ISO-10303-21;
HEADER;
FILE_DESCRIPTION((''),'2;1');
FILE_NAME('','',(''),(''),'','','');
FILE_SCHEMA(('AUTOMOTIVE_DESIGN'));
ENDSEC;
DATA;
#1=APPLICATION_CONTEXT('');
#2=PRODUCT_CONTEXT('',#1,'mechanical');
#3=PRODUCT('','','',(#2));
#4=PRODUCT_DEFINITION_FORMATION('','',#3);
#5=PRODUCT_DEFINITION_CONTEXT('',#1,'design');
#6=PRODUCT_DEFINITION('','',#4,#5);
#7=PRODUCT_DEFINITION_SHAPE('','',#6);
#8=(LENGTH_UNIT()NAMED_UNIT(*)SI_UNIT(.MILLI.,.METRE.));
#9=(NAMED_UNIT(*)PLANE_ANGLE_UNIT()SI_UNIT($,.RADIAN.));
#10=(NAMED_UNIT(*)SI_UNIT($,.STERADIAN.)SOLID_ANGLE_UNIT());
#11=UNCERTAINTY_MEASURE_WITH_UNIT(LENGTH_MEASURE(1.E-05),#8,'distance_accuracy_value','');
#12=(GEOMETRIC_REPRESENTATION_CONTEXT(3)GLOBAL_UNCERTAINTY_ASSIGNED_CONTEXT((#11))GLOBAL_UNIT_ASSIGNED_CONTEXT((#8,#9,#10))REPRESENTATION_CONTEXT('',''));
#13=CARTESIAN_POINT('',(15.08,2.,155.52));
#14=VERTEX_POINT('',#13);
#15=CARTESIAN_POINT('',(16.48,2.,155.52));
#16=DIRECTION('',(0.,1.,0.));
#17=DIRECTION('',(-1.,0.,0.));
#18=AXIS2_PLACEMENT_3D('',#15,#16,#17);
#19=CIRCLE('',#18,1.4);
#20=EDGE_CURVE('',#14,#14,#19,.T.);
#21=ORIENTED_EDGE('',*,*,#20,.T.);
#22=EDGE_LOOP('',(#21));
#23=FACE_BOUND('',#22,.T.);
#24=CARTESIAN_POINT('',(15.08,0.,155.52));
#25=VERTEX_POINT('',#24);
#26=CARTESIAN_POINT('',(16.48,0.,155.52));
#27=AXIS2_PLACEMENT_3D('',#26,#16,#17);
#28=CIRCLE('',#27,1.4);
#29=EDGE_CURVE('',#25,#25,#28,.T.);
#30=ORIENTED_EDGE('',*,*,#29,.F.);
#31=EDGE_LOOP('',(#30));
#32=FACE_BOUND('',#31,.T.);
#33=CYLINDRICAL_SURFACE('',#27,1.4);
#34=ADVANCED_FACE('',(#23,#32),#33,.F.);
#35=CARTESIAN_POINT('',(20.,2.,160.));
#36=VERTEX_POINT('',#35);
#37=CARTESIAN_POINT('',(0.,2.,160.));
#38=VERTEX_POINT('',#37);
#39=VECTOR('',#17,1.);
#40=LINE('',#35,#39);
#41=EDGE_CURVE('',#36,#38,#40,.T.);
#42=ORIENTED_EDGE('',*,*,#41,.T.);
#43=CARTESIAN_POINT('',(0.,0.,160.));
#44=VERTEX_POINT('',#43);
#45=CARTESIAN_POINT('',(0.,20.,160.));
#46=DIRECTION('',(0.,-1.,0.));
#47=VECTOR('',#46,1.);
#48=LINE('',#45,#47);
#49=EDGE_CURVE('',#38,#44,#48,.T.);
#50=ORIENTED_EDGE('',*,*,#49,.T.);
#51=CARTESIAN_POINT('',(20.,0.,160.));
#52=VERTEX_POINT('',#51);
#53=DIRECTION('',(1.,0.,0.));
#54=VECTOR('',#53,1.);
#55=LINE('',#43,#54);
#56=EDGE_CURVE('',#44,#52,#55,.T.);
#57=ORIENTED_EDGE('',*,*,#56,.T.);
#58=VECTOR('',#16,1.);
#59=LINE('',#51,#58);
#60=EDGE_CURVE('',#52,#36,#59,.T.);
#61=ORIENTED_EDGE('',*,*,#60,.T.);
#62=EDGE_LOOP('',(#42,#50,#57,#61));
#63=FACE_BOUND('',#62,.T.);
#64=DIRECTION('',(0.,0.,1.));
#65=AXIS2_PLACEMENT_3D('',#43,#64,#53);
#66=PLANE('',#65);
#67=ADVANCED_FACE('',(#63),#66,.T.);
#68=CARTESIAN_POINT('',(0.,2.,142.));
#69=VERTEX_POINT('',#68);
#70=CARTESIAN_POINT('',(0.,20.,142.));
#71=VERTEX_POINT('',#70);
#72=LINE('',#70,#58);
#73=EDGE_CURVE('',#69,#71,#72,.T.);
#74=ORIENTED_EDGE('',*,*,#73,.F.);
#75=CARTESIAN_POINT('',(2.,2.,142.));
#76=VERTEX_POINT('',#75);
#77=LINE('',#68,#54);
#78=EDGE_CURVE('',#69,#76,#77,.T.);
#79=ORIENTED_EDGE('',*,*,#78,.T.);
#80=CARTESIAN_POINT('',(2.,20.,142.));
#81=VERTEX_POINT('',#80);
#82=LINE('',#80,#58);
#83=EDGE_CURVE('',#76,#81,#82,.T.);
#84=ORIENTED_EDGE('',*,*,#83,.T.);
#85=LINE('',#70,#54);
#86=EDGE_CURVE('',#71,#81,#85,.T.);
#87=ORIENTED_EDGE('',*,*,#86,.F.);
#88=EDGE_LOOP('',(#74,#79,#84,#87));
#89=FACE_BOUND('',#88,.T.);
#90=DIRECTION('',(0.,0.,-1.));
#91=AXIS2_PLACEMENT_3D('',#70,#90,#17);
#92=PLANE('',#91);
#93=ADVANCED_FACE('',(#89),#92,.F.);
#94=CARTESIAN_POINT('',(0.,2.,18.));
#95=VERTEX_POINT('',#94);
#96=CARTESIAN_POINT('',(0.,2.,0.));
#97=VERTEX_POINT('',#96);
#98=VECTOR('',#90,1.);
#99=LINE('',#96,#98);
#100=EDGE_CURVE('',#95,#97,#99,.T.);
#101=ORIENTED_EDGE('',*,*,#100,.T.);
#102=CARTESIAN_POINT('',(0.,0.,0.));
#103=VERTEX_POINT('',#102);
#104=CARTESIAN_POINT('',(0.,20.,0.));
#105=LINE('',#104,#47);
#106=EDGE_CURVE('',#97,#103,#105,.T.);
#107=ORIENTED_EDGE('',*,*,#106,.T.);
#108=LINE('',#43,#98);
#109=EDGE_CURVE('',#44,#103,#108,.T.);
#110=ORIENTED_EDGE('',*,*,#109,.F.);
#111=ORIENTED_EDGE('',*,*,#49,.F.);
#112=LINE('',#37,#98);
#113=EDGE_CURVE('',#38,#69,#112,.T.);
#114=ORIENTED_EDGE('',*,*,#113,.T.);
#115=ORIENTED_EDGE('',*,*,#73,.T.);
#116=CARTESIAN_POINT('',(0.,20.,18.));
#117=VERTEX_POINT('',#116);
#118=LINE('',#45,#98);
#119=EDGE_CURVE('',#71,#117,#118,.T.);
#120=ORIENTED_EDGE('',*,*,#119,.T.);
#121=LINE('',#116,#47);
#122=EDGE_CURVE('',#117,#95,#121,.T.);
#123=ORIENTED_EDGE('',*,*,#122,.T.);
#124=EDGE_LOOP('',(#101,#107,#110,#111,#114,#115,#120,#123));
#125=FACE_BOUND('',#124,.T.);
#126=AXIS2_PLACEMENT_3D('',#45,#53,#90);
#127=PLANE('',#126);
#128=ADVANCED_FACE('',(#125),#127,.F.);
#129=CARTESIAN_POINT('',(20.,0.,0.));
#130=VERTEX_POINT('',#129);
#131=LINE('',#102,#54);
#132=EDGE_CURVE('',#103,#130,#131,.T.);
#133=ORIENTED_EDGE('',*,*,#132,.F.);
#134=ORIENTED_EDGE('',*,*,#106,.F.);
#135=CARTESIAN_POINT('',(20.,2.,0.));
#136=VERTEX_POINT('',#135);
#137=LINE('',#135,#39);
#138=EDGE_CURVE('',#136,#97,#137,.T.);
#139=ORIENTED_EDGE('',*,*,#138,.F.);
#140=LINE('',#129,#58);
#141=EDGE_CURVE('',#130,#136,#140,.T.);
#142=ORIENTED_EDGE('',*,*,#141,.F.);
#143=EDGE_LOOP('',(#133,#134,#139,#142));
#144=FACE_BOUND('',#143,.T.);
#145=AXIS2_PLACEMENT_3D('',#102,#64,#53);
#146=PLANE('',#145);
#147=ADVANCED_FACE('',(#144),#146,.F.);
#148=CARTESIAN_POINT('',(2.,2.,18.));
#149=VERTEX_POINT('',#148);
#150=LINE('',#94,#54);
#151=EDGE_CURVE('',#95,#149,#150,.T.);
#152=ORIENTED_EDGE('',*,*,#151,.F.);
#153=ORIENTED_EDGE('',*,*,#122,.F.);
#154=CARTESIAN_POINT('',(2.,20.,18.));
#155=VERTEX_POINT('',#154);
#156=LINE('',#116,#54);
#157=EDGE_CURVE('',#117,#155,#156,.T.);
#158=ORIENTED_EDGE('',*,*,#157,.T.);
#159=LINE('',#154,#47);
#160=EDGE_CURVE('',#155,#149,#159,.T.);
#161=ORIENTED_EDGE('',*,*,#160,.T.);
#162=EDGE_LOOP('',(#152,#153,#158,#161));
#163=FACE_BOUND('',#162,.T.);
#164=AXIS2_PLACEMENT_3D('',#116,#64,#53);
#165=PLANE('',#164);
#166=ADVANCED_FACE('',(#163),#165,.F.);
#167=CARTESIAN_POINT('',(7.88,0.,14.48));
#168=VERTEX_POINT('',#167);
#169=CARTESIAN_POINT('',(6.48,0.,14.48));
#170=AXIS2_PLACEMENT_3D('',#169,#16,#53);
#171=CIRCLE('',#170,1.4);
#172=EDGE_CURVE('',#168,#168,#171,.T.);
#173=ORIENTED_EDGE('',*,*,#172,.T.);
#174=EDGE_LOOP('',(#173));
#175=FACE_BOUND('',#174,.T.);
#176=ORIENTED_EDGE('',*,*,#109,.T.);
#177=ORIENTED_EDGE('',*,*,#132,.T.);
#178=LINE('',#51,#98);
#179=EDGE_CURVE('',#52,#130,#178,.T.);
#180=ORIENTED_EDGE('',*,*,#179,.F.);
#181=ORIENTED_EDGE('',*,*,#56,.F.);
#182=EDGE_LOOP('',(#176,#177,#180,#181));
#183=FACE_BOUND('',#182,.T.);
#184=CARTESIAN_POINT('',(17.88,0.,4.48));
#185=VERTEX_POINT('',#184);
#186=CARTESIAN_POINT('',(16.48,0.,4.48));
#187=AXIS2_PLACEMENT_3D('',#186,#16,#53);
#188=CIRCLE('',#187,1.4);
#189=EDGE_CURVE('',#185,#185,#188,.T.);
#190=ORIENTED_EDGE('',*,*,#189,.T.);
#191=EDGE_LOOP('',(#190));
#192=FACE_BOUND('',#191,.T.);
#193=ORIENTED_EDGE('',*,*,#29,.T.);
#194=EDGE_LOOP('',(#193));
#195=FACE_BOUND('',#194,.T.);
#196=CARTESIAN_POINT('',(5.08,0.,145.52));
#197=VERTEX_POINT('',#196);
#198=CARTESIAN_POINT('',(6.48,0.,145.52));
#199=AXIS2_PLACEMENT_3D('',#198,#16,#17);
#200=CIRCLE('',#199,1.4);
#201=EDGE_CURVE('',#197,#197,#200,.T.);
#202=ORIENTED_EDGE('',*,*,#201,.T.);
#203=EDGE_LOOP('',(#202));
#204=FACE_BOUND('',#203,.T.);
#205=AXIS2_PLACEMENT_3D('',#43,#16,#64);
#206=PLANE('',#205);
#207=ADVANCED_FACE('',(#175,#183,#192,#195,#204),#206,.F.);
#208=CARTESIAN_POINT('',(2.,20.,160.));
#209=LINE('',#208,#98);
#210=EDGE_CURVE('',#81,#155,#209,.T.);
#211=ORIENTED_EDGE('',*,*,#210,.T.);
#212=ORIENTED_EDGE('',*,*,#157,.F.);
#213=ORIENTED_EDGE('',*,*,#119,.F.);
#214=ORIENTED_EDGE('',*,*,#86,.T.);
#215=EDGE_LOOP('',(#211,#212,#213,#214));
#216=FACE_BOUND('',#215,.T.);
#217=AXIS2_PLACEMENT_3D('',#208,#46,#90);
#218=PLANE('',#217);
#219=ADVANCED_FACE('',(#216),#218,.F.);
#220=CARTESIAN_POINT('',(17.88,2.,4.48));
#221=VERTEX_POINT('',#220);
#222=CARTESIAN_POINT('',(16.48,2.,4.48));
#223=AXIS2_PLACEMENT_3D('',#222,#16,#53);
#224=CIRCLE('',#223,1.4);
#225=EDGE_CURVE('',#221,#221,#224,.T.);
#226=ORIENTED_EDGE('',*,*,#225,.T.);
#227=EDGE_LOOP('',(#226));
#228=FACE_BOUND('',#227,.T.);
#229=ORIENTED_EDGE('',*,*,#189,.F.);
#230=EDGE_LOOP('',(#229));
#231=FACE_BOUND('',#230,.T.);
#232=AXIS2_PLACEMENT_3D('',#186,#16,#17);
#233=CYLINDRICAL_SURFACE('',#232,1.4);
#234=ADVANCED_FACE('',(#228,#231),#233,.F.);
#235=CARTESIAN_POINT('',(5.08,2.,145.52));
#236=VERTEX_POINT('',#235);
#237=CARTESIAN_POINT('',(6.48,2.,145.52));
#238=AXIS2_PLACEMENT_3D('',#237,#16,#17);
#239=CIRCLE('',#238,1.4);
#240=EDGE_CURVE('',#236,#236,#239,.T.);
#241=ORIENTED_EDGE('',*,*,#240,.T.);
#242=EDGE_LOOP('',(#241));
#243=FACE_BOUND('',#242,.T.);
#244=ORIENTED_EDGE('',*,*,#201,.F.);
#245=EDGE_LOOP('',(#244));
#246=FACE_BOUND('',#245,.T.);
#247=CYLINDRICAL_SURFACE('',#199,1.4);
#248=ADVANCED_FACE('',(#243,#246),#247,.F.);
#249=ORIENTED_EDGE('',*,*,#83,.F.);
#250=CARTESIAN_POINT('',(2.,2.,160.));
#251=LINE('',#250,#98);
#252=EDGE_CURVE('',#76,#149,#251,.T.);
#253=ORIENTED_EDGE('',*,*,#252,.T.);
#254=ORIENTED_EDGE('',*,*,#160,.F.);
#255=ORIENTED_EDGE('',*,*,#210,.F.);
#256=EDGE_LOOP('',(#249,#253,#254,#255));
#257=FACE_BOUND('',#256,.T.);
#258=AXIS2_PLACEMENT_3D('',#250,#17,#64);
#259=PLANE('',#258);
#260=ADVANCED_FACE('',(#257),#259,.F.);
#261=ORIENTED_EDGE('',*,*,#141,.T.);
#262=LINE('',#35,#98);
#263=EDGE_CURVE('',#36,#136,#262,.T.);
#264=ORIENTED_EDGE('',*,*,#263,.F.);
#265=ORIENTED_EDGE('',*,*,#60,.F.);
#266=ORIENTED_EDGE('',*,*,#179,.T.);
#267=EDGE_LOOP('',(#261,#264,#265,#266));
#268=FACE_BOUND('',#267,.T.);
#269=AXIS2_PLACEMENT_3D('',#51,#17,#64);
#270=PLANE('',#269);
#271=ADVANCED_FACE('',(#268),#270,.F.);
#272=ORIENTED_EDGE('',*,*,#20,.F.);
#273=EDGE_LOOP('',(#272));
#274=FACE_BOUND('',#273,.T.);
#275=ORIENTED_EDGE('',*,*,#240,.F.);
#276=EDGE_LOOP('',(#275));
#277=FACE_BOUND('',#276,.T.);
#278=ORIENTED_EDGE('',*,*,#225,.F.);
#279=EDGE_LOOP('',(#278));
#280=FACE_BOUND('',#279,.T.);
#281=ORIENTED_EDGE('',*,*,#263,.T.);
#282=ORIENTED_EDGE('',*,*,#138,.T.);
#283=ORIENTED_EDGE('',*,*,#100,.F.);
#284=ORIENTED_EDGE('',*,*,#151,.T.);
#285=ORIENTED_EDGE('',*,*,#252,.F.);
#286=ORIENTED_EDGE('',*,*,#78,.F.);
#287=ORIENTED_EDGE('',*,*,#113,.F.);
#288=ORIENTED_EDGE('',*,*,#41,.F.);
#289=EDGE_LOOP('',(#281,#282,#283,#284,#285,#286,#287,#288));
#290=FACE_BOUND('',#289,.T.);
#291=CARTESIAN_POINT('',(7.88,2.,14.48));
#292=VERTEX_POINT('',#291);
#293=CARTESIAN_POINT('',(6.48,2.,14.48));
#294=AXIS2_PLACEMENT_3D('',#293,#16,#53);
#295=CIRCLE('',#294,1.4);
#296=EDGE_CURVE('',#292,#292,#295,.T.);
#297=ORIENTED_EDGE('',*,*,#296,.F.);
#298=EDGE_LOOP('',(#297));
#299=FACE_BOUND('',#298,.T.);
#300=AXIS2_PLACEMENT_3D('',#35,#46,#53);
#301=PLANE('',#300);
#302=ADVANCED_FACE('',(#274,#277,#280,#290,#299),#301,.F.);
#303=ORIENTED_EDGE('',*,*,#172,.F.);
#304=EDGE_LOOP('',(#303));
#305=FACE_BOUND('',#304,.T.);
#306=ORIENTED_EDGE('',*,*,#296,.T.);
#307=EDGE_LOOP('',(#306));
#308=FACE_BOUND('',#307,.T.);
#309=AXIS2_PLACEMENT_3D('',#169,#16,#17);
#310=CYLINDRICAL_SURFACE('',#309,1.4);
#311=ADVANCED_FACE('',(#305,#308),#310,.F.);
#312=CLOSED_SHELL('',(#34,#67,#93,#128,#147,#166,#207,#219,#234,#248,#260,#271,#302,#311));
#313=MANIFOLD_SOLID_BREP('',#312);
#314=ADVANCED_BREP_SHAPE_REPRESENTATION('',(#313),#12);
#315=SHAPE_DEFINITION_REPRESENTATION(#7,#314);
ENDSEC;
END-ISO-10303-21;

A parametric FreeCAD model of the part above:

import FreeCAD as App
import Part
import Sketcher
from FreeCAD import Vector
Q = App.Units.Quantity


def add_polygon(sketch, points):
    """Adds a closed chain of lines whose ends are joined by coincident constraints."""
    first, n = sketch.GeometryCount, len(points)
    for a, b in zip(points, points[1:] + points[:1]):
        sketch.addGeometry(Part.LineSegment(App.Vector(*a, 0), App.Vector(*b, 0)), False)
    for i in range(n):
        sketch.addConstraint(Sketcher.Constraint("Coincident", first + i, 2, first + (i + 1) % n, 1))

doc = App.newDocument("Part")
body = doc.addObject("PartDesign::Body", "Body")

sketch1 = body.newObject("Sketcher::SketchObject", "Sketch")
sketch1.AttachmentSupport = (doc.getObject("XY_Plane"), [""])
sketch1.MapMode = "FlatFace"
add_polygon(sketch1, [(0, 0), (20, 0), (20, 2), (2, 2), (2, 20), (0, 20)])
sketch1.addConstraint([
    Sketcher.Constraint("Horizontal", 0),
    Sketcher.Constraint("Vertical", 1),
    Sketcher.Constraint("Horizontal", 2),
    Sketcher.Constraint("Vertical", 3),
    Sketcher.Constraint("Horizontal", 4),
    Sketcher.Constraint("Vertical", 5),
    Sketcher.Constraint("Coincident", 5, 2, -1, 1),
    Sketcher.Constraint("Equal", 4, 1),
    Sketcher.Constraint("Equal", 2, 3),
    Sketcher.Constraint("DistanceX", 0, 1, 0, 2, Q("20 mm")),
    Sketcher.Constraint("DistanceX", 2, 2, 2, 1, Q("18 mm")),
])
pad1 = body.newObject("PartDesign::Pad", "Pad")
pad1.Profile = sketch1
pad1.Length = 160

sketch2 = body.newObject("Sketcher::SketchObject", "Sketch001")
sketch2.AttachmentSupport = (doc.getObject("YZ_Plane"), [""])
sketch2.MapMode = "FlatFace"
sketch2.AttachmentOffset = App.Placement(Vector(0, 0, 2), App.Rotation())
add_polygon(sketch2, [(20, 160), (2, 160), (2, 142), (20, 142)])
add_polygon(sketch2, [(20, 18), (2, 18), (2, 0), (20, 0)])
sketch2.addConstraint([
    Sketcher.Constraint("Horizontal", 0),
    Sketcher.Constraint("Vertical", 1),
    Sketcher.Constraint("Horizontal", 2),
    Sketcher.Constraint("Vertical", 3),
    Sketcher.Constraint("Horizontal", 4),
    Sketcher.Constraint("Vertical", 5),
    Sketcher.Constraint("Horizontal", 6),
    Sketcher.Constraint("Vertical", 7),
    Sketcher.Constraint("PointOnObject", 5, 2, -1),
    Sketcher.Constraint("Vertical", 1, 2, 4, 2),
    Sketcher.Constraint("Vertical", 3, 2, 6, 2),
    Sketcher.Constraint("Equal", 6, 1),
    Sketcher.Constraint("Equal", 3, 5),
    Sketcher.Constraint("DistanceX", 0, 2, 0, 1, Q("18 mm")),
    Sketcher.Constraint("DistanceX", -1, 1, 0, 2, Q("2 mm")),
    Sketcher.Constraint("DistanceY", -1, 1, 0, 2, Q("160 mm")),
])
pocket1 = body.newObject("PartDesign::Pocket", "Pocket")
pocket1.Profile = sketch2
pocket1.Type = "ThroughAll"

sketch3 = body.newObject("Sketcher::SketchObject", "Sketch002")
sketch3.AttachmentSupport = (doc.getObject("XZ_Plane"), [""])
sketch3.MapMode = "FlatFace"
sketch3.AttachmentOffset = App.Placement(Vector(0, 0, -2), App.Rotation())
sketch3.addGeometry([
    Part.Circle(Vector(6.5, 145.5, 0), Vector(0, 0, 1), 1.4),
    Part.Circle(Vector(6.5, 14.5, 0), Vector(0, 0, 1), 1.4),
    Part.Circle(Vector(16.5, 155.5, 0), Vector(0, 0, 1), 1.4),
    Part.Circle(Vector(16.5, 4.5, 0), Vector(0, 0, 1), 1.4),
], False)
sketch3.addConstraint([
    Sketcher.Constraint("Equal", 0, 1),
    Sketcher.Constraint("Equal", 1, 2),
    Sketcher.Constraint("Equal", 2, 3),
    Sketcher.Constraint("Vertical", 0, 3, 1, 3),
    Sketcher.Constraint("Vertical", 2, 3, 3, 3),
    Sketcher.Constraint("Diameter", 0, Q("2.8 mm")),
    Sketcher.Constraint("DistanceX", 0, 3, 2, 3, Q("10 mm")),
    Sketcher.Constraint("DistanceY", 0, 3, 2, 3, Q("10 mm")),
    Sketcher.Constraint("DistanceY", 3, 3, 1, 3, Q("10 mm")),
    Sketcher.Constraint("DistanceX", -1, 1, 0, 3, Q("6.48 mm")),
    Sketcher.Constraint("DistanceY", -1, 1, 0, 3, Q("145.52 mm")),
    Sketcher.Constraint("DistanceY", -1, 1, 1, 3, Q("14.48 mm")),
])
pocket2 = body.newObject("PartDesign::Pocket", "Pocket001")
pocket2.Profile = sketch3
pocket2.Type = "ThroughAll"
pocket2.Reversed = True

doc.recompute()
